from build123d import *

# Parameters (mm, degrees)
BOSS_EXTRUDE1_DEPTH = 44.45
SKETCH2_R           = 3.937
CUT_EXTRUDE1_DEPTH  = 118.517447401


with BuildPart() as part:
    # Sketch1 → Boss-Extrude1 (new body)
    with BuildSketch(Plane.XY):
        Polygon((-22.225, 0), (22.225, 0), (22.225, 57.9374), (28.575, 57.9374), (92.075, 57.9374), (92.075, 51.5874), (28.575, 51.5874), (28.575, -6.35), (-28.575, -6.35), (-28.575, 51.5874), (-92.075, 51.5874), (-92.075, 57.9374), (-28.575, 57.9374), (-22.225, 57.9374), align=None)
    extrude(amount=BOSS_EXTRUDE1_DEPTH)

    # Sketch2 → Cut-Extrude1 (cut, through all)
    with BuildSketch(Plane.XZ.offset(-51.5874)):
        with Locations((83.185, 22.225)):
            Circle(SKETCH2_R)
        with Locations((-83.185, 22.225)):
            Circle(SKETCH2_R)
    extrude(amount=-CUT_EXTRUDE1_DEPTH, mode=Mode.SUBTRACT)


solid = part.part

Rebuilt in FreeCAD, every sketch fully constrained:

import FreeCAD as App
import Part
import Sketcher
from FreeCAD import Vector
Q = App.Units.Quantity


def add_polygon(sketch, points):
    """Adds a closed chain of lines whose ends are joined by coincident constraints."""
    first, n = sketch.GeometryCount, len(points)
    for a, b in zip(points, points[1:] + points[:1]):
        sketch.addGeometry(Part.LineSegment(App.Vector(*a, 0), App.Vector(*b, 0)), False)
    for i in range(n):
        sketch.addConstraint(Sketcher.Constraint("Coincident", first + i, 2, first + (i + 1) % n, 1))

doc = App.newDocument("Part")
body = doc.addObject("PartDesign::Body", "Body")

# Sketch on XY plane
sketch1 = doc.addObject("Sketcher::SketchObject", "Sketch")
body.addObject(sketch1)
sketch1.AttachmentSupport = (doc.XY_Plane, [""])
sketch1.MapMode = "FlatFace"
add_polygon(sketch1, [(22, 0), (-22, 0), (-22, 58), (-92, 58), (-92, 52), (-29, 52), (-29, -6), (29, -6), (29, 52), (92, 52), (92, 58), (22, 58)])  # lines 0-11
sketch1.addConstraint(Sketcher.Constraint("Horizontal", 0))
sketch1.addConstraint(Sketcher.Constraint("Vertical", 1))
sketch1.addConstraint(Sketcher.Constraint("Horizontal", 2))
sketch1.addConstraint(Sketcher.Constraint("Vertical", 3))
sketch1.addConstraint(Sketcher.Constraint("Horizontal", 4))
sketch1.addConstraint(Sketcher.Constraint("Vertical", 5))
sketch1.addConstraint(Sketcher.Constraint("Horizontal", 6))
sketch1.addConstraint(Sketcher.Constraint("Vertical", 7))
sketch1.addConstraint(Sketcher.Constraint("Horizontal", 8))
sketch1.addConstraint(Sketcher.Constraint("Vertical", 9))
sketch1.addConstraint(Sketcher.Constraint("Horizontal", 10))
sketch1.addConstraint(Sketcher.Constraint("Vertical", 11))
sketch1.addConstraint(Sketcher.Constraint("Symmetric", 0, 2, 11, 2, -1, 1))
sketch1.addConstraint(Sketcher.Constraint("Symmetric", 4, 2, 7, 2, -2))
sketch1.addConstraint(Sketcher.Constraint("Symmetric", 2, 2, 9, 2, -2))
sketch1.addConstraint(Sketcher.Constraint("Equal", 1, 5))
sketch1.addConstraint(Sketcher.Constraint("DistanceX", 4, 1, 4, 2, Q("2.5 in")))
sketch1.addConstraint(Sketcher.Constraint("DistanceX", 0, 2, 6, 2, Q("2 in")))
sketch1.addConstraint(Sketcher.Constraint("DistanceX", 0, 2, 0, 1, Q("1.75 in")))
sketch1.addConstraint(Sketcher.Constraint("DistanceY", 3, 2, 3, 1, Q("0.25 in")))
sketch1.addConstraint(Sketcher.Constraint("DistanceY", 1, 1, 1, 2, Q("2.281 in")))
pad1 = doc.addObject("PartDesign::Pad", "Pad")
body.addObject(pad1)
pad1.Profile = sketch1
pad1.Length = Q("1.75 in")

# Sketch on XZ plane
sketch2 = doc.addObject("Sketcher::SketchObject", "Sketch001")
body.addObject(sketch2)
sketch2.AttachmentSupport = (doc.XZ_Plane, [""])
sketch2.MapMode = "FlatFace"
sketch2.AttachmentOffset = App.Placement(Vector(0, 0, -2.031 * 25.4), App.Rotation())
sketch2.addGeometry(Part.Circle(Vector(83.2, 22.2, 0), Vector(0, 0, 1), 3.9), False)
sketch2.addGeometry(Part.Circle(Vector(-83.2, 22.2, 0), Vector(0, 0, 1), 3.9), False)
sketch2.addConstraint(Sketcher.Constraint("Equal", 0, 1))
sketch2.addConstraint(Sketcher.Constraint("Symmetric", 0, 3, 1, 3, -2))
sketch2.addConstraint(Sketcher.Constraint("Diameter", 0, Q("0.31 in")))
sketch2.addConstraint(Sketcher.Constraint("DistanceX", 1, 3, 0, 3, Q("6.55 in")))
sketch2.addConstraint(Sketcher.Constraint("DistanceY", -1, 1, 0, 3, Q("0.875 in")))
pocket1 = doc.addObject("PartDesign::Pocket", "Pocket")
body.addObject(pocket1)
pocket1.Profile = sketch2
pocket1.Type = "ThroughAll"

doc.recompute()
